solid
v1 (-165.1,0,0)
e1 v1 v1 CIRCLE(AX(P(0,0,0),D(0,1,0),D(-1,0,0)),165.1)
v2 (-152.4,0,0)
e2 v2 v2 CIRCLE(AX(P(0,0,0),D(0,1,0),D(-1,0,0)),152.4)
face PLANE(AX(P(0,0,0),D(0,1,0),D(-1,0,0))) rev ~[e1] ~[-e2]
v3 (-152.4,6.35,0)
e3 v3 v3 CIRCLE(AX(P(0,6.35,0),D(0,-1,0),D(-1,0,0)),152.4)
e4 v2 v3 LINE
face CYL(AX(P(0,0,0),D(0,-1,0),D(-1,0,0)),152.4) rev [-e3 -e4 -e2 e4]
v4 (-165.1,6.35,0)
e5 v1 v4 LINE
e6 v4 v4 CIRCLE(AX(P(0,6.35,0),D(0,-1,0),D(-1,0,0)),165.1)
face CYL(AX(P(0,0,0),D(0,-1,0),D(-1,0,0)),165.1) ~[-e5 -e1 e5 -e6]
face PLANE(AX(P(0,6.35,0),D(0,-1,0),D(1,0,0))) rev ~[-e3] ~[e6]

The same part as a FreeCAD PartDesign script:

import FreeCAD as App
import Part
import Sketcher
from FreeCAD import Vector
Q = App.Units.Quantity


def add_polygon(sketch, points):
    """Adds a closed chain of lines whose ends are joined by coincident constraints."""
    first, n = sketch.GeometryCount, len(points)
    for a, b in zip(points, points[1:] + points[:1]):
        sketch.addGeometry(Part.LineSegment(App.Vector(*a, 0), App.Vector(*b, 0)), False)
    for i in range(n):
        sketch.addConstraint(Sketcher.Constraint("Coincident", first + i, 2, first + (i + 1) % n, 1))

doc = App.newDocument("Part")
params = doc.addObject("Spreadsheet::Sheet", "Params")
for row, (alias, value) in enumerate([
    ("sketch1_diameter", "13 in"),
    ("sketch1_diameter2", "12 in"),
    ("pad1_length", "6 in"),
    ("sketch2_diameter", "2 in"),
    ("pad2_length", "35 in"),
    ("sketch3_diameter", "12 in"),
    ("sketch4_diameter", "13 in"),
    ("pad3_length", "2 in"),
    ("pad3_taper", "-50 deg"),
    ("sketch5_diameter", "2 in"),
    ("pad4_length", "11.045 in"),
    ("sketch6_diameter", "2 in"),
    ("pad5_length", "11.045 in"),
    ("pocket2_length", "5 in"),
    ("pocket3_length", "10 in"),
    ("pocket4_length", "10 in"),
    ("pocket5_length", "0.75 in"),
], start=1):
    params.set(f"A{row}", alias)
    params.set(f"B{row}", "=" + value)
    params.setAlias(f"B{row}", alias)

body = doc.addObject("PartDesign::Body", "Body")
body.AllowCompound = True

# Sketch on XZ plane
sketch1 = body.newObject("Sketcher::SketchObject", "Sketch")
sketch1.AttachmentSupport = (doc.getObject("XZ_Plane"), [""])
sketch1.MapMode = "FlatFace"
sketch1.addGeometry([
    Part.Circle(Vector(0, 0, 0), Vector(0, 0, 1), 165.1),
    Part.Circle(Vector(0, 0, 0), Vector(0, 0, 1), 152.4),
], False)
sketch1.addConstraint([
    Sketcher.Constraint("Coincident", 0, 3, -1, 1),
    Sketcher.Constraint("Coincident", 1, 3, -1, 1),
    Sketcher.Constraint("Diameter", 0, Q("13 in")),
    Sketcher.Constraint("Diameter", 1, Q("12 in")),
])
sketch1.setExpression("Constraints[2]", "Params.sketch1_diameter")
sketch1.setExpression("Constraints[3]", "Params.sketch1_diameter2")
pad1 = body.newObject("PartDesign::Pad", "Pad")
pad1.Profile = sketch1
pad1.setExpression("Length", "Params.pad1_length")
pad1.Reversed = True

# Sketch on YZ plane
sketch2 = body.newObject("Sketcher::SketchObject", "Sketch001")
sketch2.AttachmentSupport = (doc.getObject("YZ_Plane"), [""])
sketch2.MapMode = "FlatFace"
sketch2.addGeometry(Part.Circle(Vector(100.6077, 0, 0), Vector(0, 0, 1), 25.4), False)
sketch2.addConstraint([
    Sketcher.Constraint("PointOnObject", 0, 3, -1),
    Sketcher.Constraint("Diameter", 0, Q("2 in")),
    Sketcher.Constraint("DistanceX", -1, 1, 0, 3, 100.6077),
])
sketch2.setExpression("Constraints[1]", "Params.sketch2_diameter")
pad2 = body.newObject("PartDesign::Pad", "Pad001")
pad2.Profile = sketch2
pad2.setExpression("Length", "Params.pad2_length")
pad2.Midplane = True

# Sketch on XZ plane
sketch3 = body.newObject("Sketcher::SketchObject", "Sketch002")
sketch3.AttachmentSupport = (doc.getObject("XZ_Plane"), [""])
sketch3.MapMode = "FlatFace"
sketch3.AttachmentOffset = App.Placement(Vector(0, 0, -6 * 25.4), App.Rotation())
sketch3.addGeometry(Part.Circle(Vector(0, 0, 0), Vector(0, 0, 1), 152.4), False)
sketch3.addConstraint([
    Sketcher.Constraint("Coincident", 0, 3, -1, 1),
    Sketcher.Constraint("Diameter", 0, Q("12 in")),
])
sketch3.setExpression("Constraints[1]", "Params.sketch3_diameter")
pocket1 = body.newObject("PartDesign::Pocket", "Pocket")
pocket1.Profile = sketch3
pocket1.Type = "ThroughAll"
pocket1.Reversed = True

# Sketch on XZ plane
sketch4 = body.newObject("Sketcher::SketchObject", "Sketch003")
sketch4.AttachmentSupport = (doc.getObject("XZ_Plane"), [""])
sketch4.MapMode = "FlatFace"
sketch4.AttachmentOffset = App.Placement(Vector(0, 0, -6 * 25.4), App.Rotation())
sketch4.addGeometry(Part.Circle(Vector(0, 0, 0), Vector(0, 0, 1), 165.1), False)
sketch4.addConstraint([
    Sketcher.Constraint("Coincident", 0, 3, -1, 1),
    Sketcher.Constraint("Diameter", 0, Q("13 in")),
])
sketch4.setExpression("Constraints[1]", "Params.sketch4_diameter")
pad3 = body.newObject("PartDesign::Pad", "Pad002")
pad3.Profile = sketch4
pad3.setExpression("Length", "Params.pad3_length")
pad3.Reversed = True
pad3.setExpression("TaperAngle", "Params.pad3_taper")

# Sketch on XY plane
sketch5 = body.newObject("Sketcher::SketchObject", "Sketch004")
sketch5.AttachmentSupport = (doc.getObject("XY_Plane"), [""])
sketch5.MapMode = "FlatFace"
sketch5.AttachmentOffset = App.Placement(Vector(0, 0, 6.5 * 25.4), App.Rotation())
sketch5.addGeometry(Part.Circle(Vector(0, 100.6094, 0), Vector(0, 0, 1), 25.4), False)
sketch5.addConstraint([
    Sketcher.Constraint("PointOnObject", 0, 3, -2),
    Sketcher.Constraint("Diameter", 0, Q("2 in")),
    Sketcher.Constraint("DistanceY", -1, 1, 0, 3, Q("3.961 in")),
])
sketch5.setExpression("Constraints[1]", "Params.sketch5_diameter")
pad4 = body.newObject("PartDesign::Pad", "Pad003")
pad4.Profile = sketch5
pad4.setExpression("Length", "Params.pad4_length")

# Sketch on XY plane
sketch6 = body.newObject("Sketcher::SketchObject", "Sketch005")
sketch6.AttachmentSupport = (doc.getObject("XY_Plane"), [""])
sketch6.MapMode = "FlatFace"
sketch6.AttachmentOffset = App.Placement(Vector(0, 0, -6.5 * 25.4), App.Rotation())
sketch6.addGeometry(Part.Circle(Vector(0, 100.6094, 0), Vector(0, 0, 1), 25.4), False)
sketch6.addConstraint([
    Sketcher.Constraint("PointOnObject", 0, 3, -2),
    Sketcher.Constraint("Diameter", 0, Q("2 in")),
    Sketcher.Constraint("DistanceY", -1, 1, 0, 3, Q("3.961 in")),
])
sketch6.setExpression("Constraints[1]", "Params.sketch6_diameter")
pad5 = body.newObject("PartDesign::Pad", "Pad004")
pad5.Profile = sketch6
pad5.setExpression("Length", "Params.pad5_length")
pad5.Reversed = True

# Sketch on XZ plane
sketch7 = body.newObject("Sketcher::SketchObject", "Sketch006")
sketch7.AttachmentSupport = (doc.getObject("XZ_Plane"), [""])
sketch7.MapMode = "FlatFace"
sketch7.AttachmentOffset = App.Placement(Vector(0, 0, -6 * 25.4), App.Rotation())
add_polygon(sketch7, [(-199.2875, 210.7848), (-199.2875, -201.2037), (234.7376, -201.2037), (234.7376, 210.7848)])  # lines 0-3
sketch7.addConstraint([
    Sketcher.Constraint("Vertical", 0),
    Sketcher.Constraint("Horizontal", 1),
    Sketcher.Constraint("Vertical", 2),
    Sketcher.Constraint("Horizontal", 3),
    Sketcher.Constraint("DistanceX", 1, 1, 1, 2, Q("17.0876 in")),
    Sketcher.Constraint("DistanceY", 0, 2, 0, 1, 411.9885),
    Sketcher.Constraint("DistanceY", 0, 2, -1, 1, Q("7.9214 in")),
    Sketcher.Constraint("DistanceX", 0, 2, -1, 1, 199.2875),
])
pocket2 = body.newObject("PartDesign::Pocket", "Pocket001")
pocket2.Profile = sketch7
pocket2.setExpression("Length", "Params.pocket2_length")

# Sketch on XZ plane
sketch8 = body.newObject("Sketcher::SketchObject", "Sketch007")
sketch8.AttachmentSupport = (doc.getObject("XZ_Plane"), [""])
sketch8.MapMode = "FlatFace"
sketch8.AttachmentOffset = App.Placement(Vector(0, 0, -2.5 * 25.4), App.Rotation())
add_polygon(sketch8, [(494.7202, 528.9036), (-509.2014, 528.9036), (-509.2014, -498.4488), (494.7202, -498.4488)])  # lines 0-3
sketch8.addConstraint([
    Sketcher.Constraint("Horizontal", 0),
    Sketcher.Constraint("Vertical", 1),
    Sketcher.Constraint("Horizontal", 2),
    Sketcher.Constraint("Vertical", 3),
    Sketcher.Constraint("DistanceX", 0, 2, 0, 1, 1003.9216),
    Sketcher.Constraint("DistanceY", 1, 2, 1, 1, 1027.3524),
    Sketcher.Constraint("DistanceX", 0, 2, -1, 1, Q("20.0473 in")),
    Sketcher.Constraint("DistanceY", -1, 1, 0, 2, 528.9036),
])
pocket3 = body.newObject("PartDesign::Pocket", "Pocket002")
pocket3.Profile = sketch8
pocket3.setExpression("Length", "Params.pocket3_length")

# Sketch on XZ plane
sketch9 = body.newObject("Sketcher::SketchObject", "Sketch008")
sketch9.AttachmentSupport = (doc.getObject("XZ_Plane"), [""])
sketch9.MapMode = "FlatFace"
sketch9.AttachmentOffset = App.Placement(Vector(0, 0, -1 * 25.4), App.Rotation())
add_polygon(sketch9, [(231.9916, 211.7722), (-189.4244, 211.7722), (-189.4244, -229.8633), (231.9916, -229.8633)])  # lines 0-3
sketch9.addConstraint([
    Sketcher.Constraint("Horizontal", 0),
    Sketcher.Constraint("Vertical", 1),
    Sketcher.Constraint("Horizontal", 2),
    Sketcher.Constraint("Vertical", 3),
    Sketcher.Constraint("DistanceX", 0, 2, 0, 1, 421.416),
    Sketcher.Constraint("DistanceY", 1, 2, 1, 1, 441.6355),
    Sketcher.Constraint("DistanceY", -1, 1, 0, 2, Q("8.3375 in")),
    Sketcher.Constraint("DistanceX", 0, 2, -1, 1, 189.4244),
])
pocket4 = body.newObject("PartDesign::Pocket", "Pocket003")
pocket4.Profile = sketch9
pocket4.setExpression("Length", "Params.pocket4_length")

# Sketch on XZ plane
sketch10 = body.newObject("Sketcher::SketchObject", "Sketch009")
sketch10.AttachmentSupport = (doc.getObject("XZ_Plane"), [""])
sketch10.MapMode = "FlatFace"
sketch10.AttachmentOffset = App.Placement(Vector(0, 0, -1 * 25.4), App.Rotation())
add_polygon(sketch10, [(-206.305, 226.7892), (-206.305, -203.3787), (218.0102, -203.3787), (218.0102, 226.7892)])  # lines 0-3
sketch10.addConstraint([
    Sketcher.Constraint("Vertical", 0),
    Sketcher.Constraint("Horizontal", 1),
    Sketcher.Constraint("Vertical", 2),
    Sketcher.Constraint("Horizontal", 3),
    Sketcher.Constraint("DistanceX", 1, 1, 1, 2, 424.3152),
    Sketcher.Constraint("DistanceY", 0, 2, 0, 1, 430.168),
    Sketcher.Constraint("DistanceY", -1, 1, 2, 2, Q("8.9287 in")),
    Sketcher.Constraint("DistanceX", 0, 2, -1, 1, 206.305),
])
pocket5 = body.newObject("PartDesign::Pocket", "Pocket004")
pocket5.Profile = sketch10
pocket5.setExpression("Length", "Params.pocket5_length")
pocket5.Reversed = True

doc.recompute()
